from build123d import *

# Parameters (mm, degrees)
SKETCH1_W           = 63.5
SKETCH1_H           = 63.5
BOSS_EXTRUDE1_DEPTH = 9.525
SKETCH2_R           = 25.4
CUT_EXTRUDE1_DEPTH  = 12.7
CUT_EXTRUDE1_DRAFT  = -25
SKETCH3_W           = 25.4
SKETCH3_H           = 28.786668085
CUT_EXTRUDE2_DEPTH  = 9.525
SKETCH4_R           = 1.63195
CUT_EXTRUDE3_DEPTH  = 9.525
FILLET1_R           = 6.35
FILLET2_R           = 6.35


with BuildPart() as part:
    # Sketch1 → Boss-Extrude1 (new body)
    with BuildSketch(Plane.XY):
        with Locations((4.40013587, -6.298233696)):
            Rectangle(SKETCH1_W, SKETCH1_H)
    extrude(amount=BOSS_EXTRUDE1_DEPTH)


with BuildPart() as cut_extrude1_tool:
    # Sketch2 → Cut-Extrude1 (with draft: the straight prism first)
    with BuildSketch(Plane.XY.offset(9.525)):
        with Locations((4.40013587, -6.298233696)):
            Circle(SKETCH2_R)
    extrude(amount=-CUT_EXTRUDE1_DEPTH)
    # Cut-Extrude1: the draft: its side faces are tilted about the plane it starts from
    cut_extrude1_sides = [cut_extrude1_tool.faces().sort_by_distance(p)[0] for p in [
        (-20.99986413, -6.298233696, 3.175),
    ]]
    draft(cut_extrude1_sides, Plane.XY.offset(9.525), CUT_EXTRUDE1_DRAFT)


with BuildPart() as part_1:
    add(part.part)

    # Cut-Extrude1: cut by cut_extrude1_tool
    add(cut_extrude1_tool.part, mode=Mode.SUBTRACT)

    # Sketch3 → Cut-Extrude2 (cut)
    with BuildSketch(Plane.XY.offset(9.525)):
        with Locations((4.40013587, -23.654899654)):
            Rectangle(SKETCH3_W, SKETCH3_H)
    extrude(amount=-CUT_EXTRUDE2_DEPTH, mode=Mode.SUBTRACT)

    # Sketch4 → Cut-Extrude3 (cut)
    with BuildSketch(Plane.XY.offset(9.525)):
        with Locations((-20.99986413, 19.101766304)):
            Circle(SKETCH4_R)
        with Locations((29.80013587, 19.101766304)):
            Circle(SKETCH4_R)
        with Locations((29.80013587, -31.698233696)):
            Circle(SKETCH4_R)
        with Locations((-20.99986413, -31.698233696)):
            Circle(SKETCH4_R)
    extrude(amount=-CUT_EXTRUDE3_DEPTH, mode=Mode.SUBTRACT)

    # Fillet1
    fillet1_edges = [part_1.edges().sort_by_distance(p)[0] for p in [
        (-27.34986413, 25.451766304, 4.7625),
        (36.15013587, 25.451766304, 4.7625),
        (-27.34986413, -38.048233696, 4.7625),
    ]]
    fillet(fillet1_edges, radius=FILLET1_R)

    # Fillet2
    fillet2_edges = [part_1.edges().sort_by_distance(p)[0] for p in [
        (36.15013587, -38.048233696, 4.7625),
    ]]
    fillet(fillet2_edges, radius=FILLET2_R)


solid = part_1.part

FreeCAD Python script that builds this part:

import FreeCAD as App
import Part
import Sketcher
from FreeCAD import Vector
Q = App.Units.Quantity


def edges_at(feature, points):
    """Names of the edges that pass closest to the given points."""
    edges = feature.Shape.Edges
    near = lambda p: min(range(len(edges)), key=lambda i: edges[i].distToShape(Part.Vertex(*p))[0])
    return sorted({f"Edge{near(p) + 1}" for p in points})


def faces_at(feature, points):
    """Names of the faces that lie closest to the given points."""
    faces = feature.Shape.Faces
    near = lambda p: min(range(len(faces)), key=lambda i: faces[i].distToShape(Part.Vertex(*p))[0])
    return sorted({f"Face{near(p) + 1}" for p in points})


def add_polygon(sketch, points):
    """Adds a closed chain of lines whose ends are joined by coincident constraints."""
    first, n = sketch.GeometryCount, len(points)
    for a, b in zip(points, points[1:] + points[:1]):
        sketch.addGeometry(Part.LineSegment(App.Vector(*a, 0), App.Vector(*b, 0)), False)
    for i in range(n):
        sketch.addConstraint(Sketcher.Constraint("Coincident", first + i, 2, first + (i + 1) % n, 1))

doc = App.newDocument("Part")
params = doc.addObject("Spreadsheet::Sheet", "Params")
for row, (alias, value) in enumerate([
    ("sketch1_width", "2.5 in"),
    ("pad1_length", "0.375 in"),
    ("sketch2_diameter", "2 in"),
    ("pad2_length", "0.5 in"),
    ("draft_angle", "25 deg"),
    ("sketch3_width", "1 in"),
    ("pocket1_length", "0.375 in"),
    ("pocket2_length", "0.375 in"),
    ("fillet_radius", "0.25 in"),
    ("fillet2_radius", "0.25 in"),
], start=1):
    params.set(f"A{row}", alias)
    params.set(f"B{row}", "=" + value)
    params.setAlias(f"B{row}", alias)

body = doc.addObject("PartDesign::Body", "Body")

# Sketch on XY plane
sketch1 = body.newObject("Sketcher::SketchObject", "Sketch")
sketch1.AttachmentSupport = (doc.getObject("XY_Plane"), [""])
sketch1.MapMode = "FlatFace"
add_polygon(sketch1, [(-27, 25), (-27, -38), (36, -38), (36, 25)])  # lines 0-3
sketch1.addConstraint([
    Sketcher.Constraint("Vertical", 0),
    Sketcher.Constraint("Horizontal", 1),
    Sketcher.Constraint("Vertical", 2),
    Sketcher.Constraint("Horizontal", 3),
    Sketcher.Constraint("Equal", 3, 0),
    Sketcher.Constraint("DistanceX", 1, 1, 1, 2, Q("2.5 in")),
    Sketcher.Constraint("DistanceX", 0, 2, -1, 1, Q("27.349864 mm")),
    Sketcher.Constraint("DistanceY", 0, 2, -1, 1, Q("38.048234 mm")),
])
sketch1.setExpression("Constraints[9]", "Params.sketch1_width")
pad1 = body.newObject("PartDesign::Pad", "Pad")
pad1.Profile = sketch1
pad1.setExpression("Length", "Params.pad1_length")
body2 = doc.addObject("PartDesign::Body", "Body001")

# Sketch on XY plane
sketch2 = body2.newObject("Sketcher::SketchObject", "Sketch001")
sketch2.AttachmentSupport = (doc.getObject("XY_Plane001"), [""])
sketch2.MapMode = "FlatFace"
sketch2.AttachmentOffset = App.Placement(Vector(0, 0, 0.375 * 25.4), App.Rotation())
sketch2.addGeometry(Part.Circle(Vector(4, -6, 0), Vector(0, 0, 1), 25), False)
sketch2.addConstraint([
    Sketcher.Constraint("Diameter", 0, Q("2 in")),
    Sketcher.Constraint("DistanceX", -1, 1, 0, 3, Q("4.400136 mm")),
    Sketcher.Constraint("DistanceY", 0, 3, -1, 1, Q("6.298234 mm")),
])
sketch2.setExpression("Constraints[0]", "Params.sketch2_diameter")
pad2 = body2.newObject("PartDesign::Pad", "Pad001")
pad2.Profile = sketch2
pad2.setExpression("Length", "Params.pad2_length")
pad2.Reversed = True
doc.recompute()

datumplane = body2.newObject("PartDesign::Plane", "DatumPlane")
datumplane.AttachmentSupport = (doc.getObject("XY_Plane001"), [""])
datumplane.MapMode = "FlatFace"
datumplane.AttachmentOffset = App.Placement(Vector(0, 0, 0.375 * 25.4), App.Rotation())
draft = body2.newObject("PartDesign::Draft", "Draft")
draft.Base = (pad2, faces_at(pad2, [(-21, -6.298, 3.175)]))
draft.NeutralPlane = (datumplane, [""])
draft.setExpression("Angle", "Params.draft_angle")
draft.Reversed = True
doc.recompute()

boolean = body.newObject("PartDesign::Boolean", "Boolean")
boolean.Type = "Cut"
boolean.addObjects([body2])

# Sketch on XY plane
sketch3 = body.newObject("Sketcher::SketchObject", "Sketch002")
sketch3.AttachmentSupport = (doc.getObject("XY_Plane"), [""])
sketch3.MapMode = "FlatFace"
sketch3.AttachmentOffset = App.Placement(Vector(0, 0, 0.375 * 25.4), App.Rotation())
add_polygon(sketch3, [(-8, -9), (-8, -38), (17, -38), (17, -9)])  # lines 0-3
sketch3.addConstraint([
    Sketcher.Constraint("Vertical", 0),
    Sketcher.Constraint("Horizontal", 1),
    Sketcher.Constraint("Vertical", 2),
    Sketcher.Constraint("Horizontal", 3),
    Sketcher.Constraint("DistanceX", 1, 1, 1, 2, Q("1 in")),
    Sketcher.Constraint("DistanceY", 0, 2, 0, 1, Q("28.786668 mm")),
    Sketcher.Constraint("DistanceX", 0, 2, -1, 1, Q("8.299864 mm")),
    Sketcher.Constraint("DistanceY", 0, 2, -1, 1, Q("38.048234 mm")),
])
sketch3.setExpression("Constraints[8]", "Params.sketch3_width")
pocket1 = body.newObject("PartDesign::Pocket", "Pocket")
pocket1.Profile = sketch3
pocket1.setExpression("Length", "Params.pocket1_length")

# Sketch on XY plane
sketch4 = body.newObject("Sketcher::SketchObject", "Sketch003")
sketch4.AttachmentSupport = (doc.getObject("XY_Plane"), [""])
sketch4.MapMode = "FlatFace"
sketch4.AttachmentOffset = App.Placement(Vector(0, 0, 0.375 * 25.4), App.Rotation())
sketch4.addGeometry([
    Part.Circle(Vector(-21, 19.1, 0), Vector(0, 0, 1), 1.6),
    Part.Circle(Vector(29.8, 19.1, 0), Vector(0, 0, 1), 1.6),
    Part.Circle(Vector(29.8, -31.7, 0), Vector(0, 0, 1), 1.6),
    Part.Circle(Vector(-21, -31.7, 0), Vector(0, 0, 1), 1.6),
], False)
sketch4.addConstraint([
    Sketcher.Constraint("Equal", 0, 1),
    Sketcher.Constraint("Equal", 1, 2),
    Sketcher.Constraint("Equal", 2, 3),
    Sketcher.Constraint("Horizontal", 0, 3, 1, 3),
    Sketcher.Constraint("Horizontal", 2, 3, 3, 3),
    Sketcher.Constraint("Vertical", 1, 3, 2, 3),
    Sketcher.Constraint("Vertical", 0, 3, 3, 3),
    Sketcher.Constraint("DistanceX", 0, 3, 1, 3, Q("2 in")),
    Sketcher.Constraint("DistanceY", 2, 3, 1, 3, Q("2 in")),
    Sketcher.Constraint("Diameter", 0, Q("0.1285 in")),
    Sketcher.Constraint("DistanceX", 0, 3, -1, 1, Q("20.999864 mm")),
    Sketcher.Constraint("DistanceY", -1, 1, 0, 3, Q("19.101766 mm")),
])
pocket2 = body.newObject("PartDesign::Pocket", "Pocket001")
pocket2.Profile = sketch4
pocket2.setExpression("Length", "Params.pocket2_length")
doc.recompute()

fillet = body.newObject("PartDesign::Fillet", "Fillet")
fillet.Base = (pocket2, edges_at(pocket2, [(-27.35, 25.452, 4.763), (36.15, 25.452, 4.763), (-27.35, -38.048, 4.763)]))
fillet.setExpression("Radius", "Params.fillet_radius")
doc.recompute()

fillet2 = body.newObject("PartDesign::Fillet", "Fillet001")
fillet2.Base = (fillet, edges_at(fillet, [(36.15, -38.048, 4.763)]))
fillet2.setExpression("Radius", "Params.fillet2_radius")

doc.recompute()
